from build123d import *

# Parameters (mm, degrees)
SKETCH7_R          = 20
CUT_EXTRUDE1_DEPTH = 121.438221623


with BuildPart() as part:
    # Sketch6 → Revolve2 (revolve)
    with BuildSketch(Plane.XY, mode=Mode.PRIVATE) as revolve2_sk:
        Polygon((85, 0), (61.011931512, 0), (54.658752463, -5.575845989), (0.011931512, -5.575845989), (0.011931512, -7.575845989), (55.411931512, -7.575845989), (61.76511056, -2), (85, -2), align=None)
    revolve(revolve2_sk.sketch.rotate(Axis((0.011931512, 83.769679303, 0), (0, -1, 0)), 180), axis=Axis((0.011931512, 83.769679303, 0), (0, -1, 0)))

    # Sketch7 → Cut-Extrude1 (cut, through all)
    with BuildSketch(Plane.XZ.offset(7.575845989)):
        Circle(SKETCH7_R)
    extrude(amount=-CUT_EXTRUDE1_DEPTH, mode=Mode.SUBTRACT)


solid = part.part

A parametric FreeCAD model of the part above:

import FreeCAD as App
import Part
import Sketcher
from FreeCAD import Vector

doc = App.newDocument("Part")
params = doc.addObject("Spreadsheet::Sheet", "Params")
for row, (alias, value) in enumerate([
    ("sketch1_height", "2 mm"),
    ("sketch1_width", "55.4 mm"),
    ("revolution_angle", "360 deg"),
    ("sketch2_diameter", "40 mm"),
], start=1):
    params.set(f"A{row}", alias)
    params.set(f"B{row}", "=" + value)
    params.setAlias(f"B{row}", alias)

body = doc.addObject("PartDesign::Body", "Body")

sketch1 = body.newObject("Sketcher::SketchObject", "Sketch")
sketch1.AttachmentSupport = (doc.getObject("XY_Plane"), [""])
sketch1.MapMode = "FlatFace"
sketch1.addGeometry([
    Part.LineSegment(Vector(85, 0, 0), Vector(61, 0, 0)),
    Part.LineSegment(Vector(61, 0, 0), Vector(54.7, -5.6, 0)),
    Part.LineSegment(Vector(54.7, -5.6, 0), Vector(0, -5.6, 0)),
    Part.LineSegment(Vector(0, -5.6, 0), Vector(0, -7.6, 0)),
    Part.LineSegment(Vector(0, -7.6, 0), Vector(55.4, -7.6, 0)),
    Part.LineSegment(Vector(55.4, -7.6, 0), Vector(61.8, -2, 0)),
    Part.LineSegment(Vector(61.8, -2, 0), Vector(85, -2, 0)),
    Part.LineSegment(Vector(85, -2, 0), Vector(85, 0, 0)),
], False)
sketch1.addGeometry(Part.LineSegment(Vector(0, 0, 0), Vector(0, -7.6, 0)), True)
sketch1.addConstraint([
    Sketcher.Constraint("Coincident", 0, 2, 1, 1),
    Sketcher.Constraint("Coincident", 1, 2, 2, 1),
    Sketcher.Constraint("Coincident", 2, 2, 3, 1),
    Sketcher.Constraint("Coincident", 3, 2, 4, 1),
    Sketcher.Constraint("Coincident", 4, 2, 5, 1),
    Sketcher.Constraint("Coincident", 5, 2, 6, 1),
    Sketcher.Constraint("Coincident", 6, 2, 7, 1),
    Sketcher.Constraint("Coincident", 7, 2, 0, 1),
    Sketcher.Constraint("Horizontal", 0),
    Sketcher.Constraint("Horizontal", 2),
    Sketcher.Constraint("Vertical", 3),
    Sketcher.Constraint("Horizontal", 4),
    Sketcher.Constraint("Horizontal", 6),
    Sketcher.Constraint("Vertical", 7),
    Sketcher.Constraint("Vertical", 8),
    Sketcher.Constraint("Coincident", 8, 2, 3, 2),
    Sketcher.Constraint("PointOnObject", 0, 2, -1),
    Sketcher.Constraint("PointOnObject", 8, 1, -1),
    Sketcher.Constraint("Parallel", 1, 5),
    Sketcher.Constraint("Equal", 3, 7),
    Sketcher.Constraint("DistanceY", 3, 2, 3, 1, 2.0),
    Sketcher.Constraint("DistanceX", 4, 1, 4, 2, 55.4),
    Sketcher.Constraint("DistanceX", -1, 1, 6, 2, 85.0),
    Sketcher.Constraint("DistanceX", 2, 2, 0, 2, 61.0),
    Sketcher.Constraint("DistanceX", 0, 2, 0, 1, 23.988068),
    Sketcher.Constraint("DistanceX", 2, 2, 2, 1, 54.646821),
    Sketcher.Constraint("DistanceY", 8, 2, 8, 1, 7.575846),
])
sketch1.setExpression("Constraints[20]", "Params.sketch1_height")
sketch1.setExpression("Constraints[21]", "Params.sketch1_width")
revolution = body.newObject("PartDesign::Revolution", "Revolution")
revolution.Profile = sketch1
revolution.ReferenceAxis = (sketch1, ["Axis0"])
revolution.setExpression("Angle", "Params.revolution_angle")

sketch2 = body.newObject("Sketcher::SketchObject", "Sketch001")
sketch2.AttachmentSupport = (doc.getObject("XZ_Plane"), [""])
sketch2.MapMode = "FlatFace"
sketch2.AttachmentOffset = App.Placement(Vector(0, 0, 7.575846), App.Rotation())
sketch2.addGeometry(Part.Circle(Vector(0, 0, 0), Vector(0, 0, 1), 20), False)
sketch2.addConstraint([
    Sketcher.Constraint("Coincident", 0, 3, -1, 1),
    Sketcher.Constraint("Diameter", 0, 40.0),
])
sketch2.setExpression("Constraints[1]", "Params.sketch2_diameter")
pocket1 = body.newObject("PartDesign::Pocket", "Pocket")
pocket1.Profile = sketch2
pocket1.Type = "ThroughAll"

doc.recompute()
